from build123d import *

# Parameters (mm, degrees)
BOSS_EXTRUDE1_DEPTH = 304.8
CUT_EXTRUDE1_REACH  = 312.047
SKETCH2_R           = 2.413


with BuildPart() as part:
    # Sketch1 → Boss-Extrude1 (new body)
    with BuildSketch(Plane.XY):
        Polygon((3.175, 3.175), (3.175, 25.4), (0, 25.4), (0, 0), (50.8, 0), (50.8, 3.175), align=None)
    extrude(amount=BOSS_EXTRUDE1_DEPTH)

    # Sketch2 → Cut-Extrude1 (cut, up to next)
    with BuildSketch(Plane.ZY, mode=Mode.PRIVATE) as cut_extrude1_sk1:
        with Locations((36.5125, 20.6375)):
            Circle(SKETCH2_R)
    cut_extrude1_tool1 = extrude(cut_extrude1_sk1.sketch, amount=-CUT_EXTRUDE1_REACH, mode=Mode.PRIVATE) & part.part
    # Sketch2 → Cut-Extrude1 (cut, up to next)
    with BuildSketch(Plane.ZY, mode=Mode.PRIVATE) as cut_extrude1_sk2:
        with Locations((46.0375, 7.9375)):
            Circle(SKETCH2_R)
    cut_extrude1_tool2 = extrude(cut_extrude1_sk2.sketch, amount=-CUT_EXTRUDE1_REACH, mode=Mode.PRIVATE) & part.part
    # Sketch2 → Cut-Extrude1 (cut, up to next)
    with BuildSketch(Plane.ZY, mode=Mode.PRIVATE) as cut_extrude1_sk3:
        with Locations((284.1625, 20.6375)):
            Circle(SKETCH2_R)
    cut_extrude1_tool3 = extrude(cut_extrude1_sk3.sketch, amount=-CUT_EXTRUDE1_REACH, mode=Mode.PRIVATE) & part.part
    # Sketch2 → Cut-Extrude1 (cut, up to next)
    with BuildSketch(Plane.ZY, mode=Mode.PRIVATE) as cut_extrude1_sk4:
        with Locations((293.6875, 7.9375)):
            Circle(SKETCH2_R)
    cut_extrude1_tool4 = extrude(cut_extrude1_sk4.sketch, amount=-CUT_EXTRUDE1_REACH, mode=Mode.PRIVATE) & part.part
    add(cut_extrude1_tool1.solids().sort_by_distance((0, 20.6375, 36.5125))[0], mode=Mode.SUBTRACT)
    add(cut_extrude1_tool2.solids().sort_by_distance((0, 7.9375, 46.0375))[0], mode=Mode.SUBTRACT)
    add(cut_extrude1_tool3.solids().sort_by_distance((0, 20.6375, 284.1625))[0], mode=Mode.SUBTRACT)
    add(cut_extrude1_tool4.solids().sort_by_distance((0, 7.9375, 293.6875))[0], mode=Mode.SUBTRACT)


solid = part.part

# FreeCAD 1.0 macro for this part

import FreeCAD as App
import Part
import Sketcher
from FreeCAD import Vector
Q = App.Units.Quantity

doc = App.newDocument("Part")
body = doc.addObject("PartDesign::Body", "Body")

# Sketch on XY plane
sketch1 = doc.addObject("Sketcher::SketchObject", "Sketch")
body.addObject(sketch1)
sketch1.AttachmentSupport = (doc.XY_Plane, [""])
sketch1.MapMode = "FlatFace"
sketch1.addGeometry(Part.LineSegment(Vector(3.2, 3.2, 0), Vector(3.2, 25.4, 0)), False)
sketch1.addGeometry(Part.LineSegment(Vector(3.2, 25.4, 0), Vector(0, 25.4, 0)), False)
sketch1.addGeometry(Part.LineSegment(Vector(0, 25.4, 0), Vector(0, 0, 0)), False)
sketch1.addGeometry(Part.LineSegment(Vector(0, 0, 0), Vector(50.8, 0, 0)), False)
sketch1.addGeometry(Part.LineSegment(Vector(50.8, 0, 0), Vector(50.8, 3.2, 0)), False)
sketch1.addGeometry(Part.LineSegment(Vector(50.8, 3.2, 0), Vector(3.2, 3.2, 0)), False)
sketch1.addConstraint(Sketcher.Constraint("Coincident", 0, 2, 1, 1))
sketch1.addConstraint(Sketcher.Constraint("Coincident", 1, 2, 2, 1))
sketch1.addConstraint(Sketcher.Constraint("Coincident", 2, 2, 3, 1))
sketch1.addConstraint(Sketcher.Constraint("Coincident", 3, 2, 4, 1))
sketch1.addConstraint(Sketcher.Constraint("Coincident", 4, 2, 5, 1))
sketch1.addConstraint(Sketcher.Constraint("Coincident", 5, 2, 0, 1))
sketch1.addConstraint(Sketcher.Constraint("Vertical", 0))
sketch1.addConstraint(Sketcher.Constraint("Horizontal", 1))
sketch1.addConstraint(Sketcher.Constraint("Vertical", 2))
sketch1.addConstraint(Sketcher.Constraint("Horizontal", 3))
sketch1.addConstraint(Sketcher.Constraint("Vertical", 4))
sketch1.addConstraint(Sketcher.Constraint("Horizontal", 5))
sketch1.addConstraint(Sketcher.Constraint("Coincident", 2, 2, -1, 1))
sketch1.addConstraint(Sketcher.Constraint("Equal", 1, 4))
sketch1.addConstraint(Sketcher.Constraint("DistanceX", 3, 1, 3, 2, Q("2 in")))
sketch1.addConstraint(Sketcher.Constraint("DistanceY", 2, 2, 2, 1, Q("1 in")))
sketch1.addConstraint(Sketcher.Constraint("DistanceX", 1, 2, 1, 1, Q("0.125 in")))
pad1 = doc.addObject("PartDesign::Pad", "Pad")
body.addObject(pad1)
pad1.Profile = sketch1
pad1.Length = Q("12 in")

# Sketch on YZ plane
sketch2 = doc.addObject("Sketcher::SketchObject", "Sketch001")
body.addObject(sketch2)
sketch2.AttachmentSupport = (doc.YZ_Plane, [""])
sketch2.MapMode = "FlatFace"
sketch2.addGeometry(Part.Circle(Vector(20.6, 36.5, 0), Vector(0, 0, 1), 2.4), False)
sketch2.addConstraint(Sketcher.Constraint("Diameter", 0, Q("0.19 in")))
sketch2.addConstraint(Sketcher.Constraint("DistanceX", -1, 1, 0, 3, Q("0.8125 in")))
sketch2.addConstraint(Sketcher.Constraint("DistanceY", -1, 1, 0, 3, Q("1.4375 in")))
pocket1 = doc.addObject("PartDesign::Pocket", "Pocket")
body.addObject(pocket1)
pocket1.Profile = sketch2
pocket1.Type = "UpToFirst"
pocket1.Reversed = True

# Sketch on YZ plane
sketch3 = doc.addObject("Sketcher::SketchObject", "Sketch002")
body.addObject(sketch3)
sketch3.AttachmentSupport = (doc.YZ_Plane, [""])
sketch3.MapMode = "FlatFace"
sketch3.addGeometry(Part.Circle(Vector(7.9, 46, 0), Vector(0, 0, 1), 2.4), False)
sketch3.addConstraint(Sketcher.Constraint("Diameter", 0, Q("0.19 in")))
sketch3.addConstraint(Sketcher.Constraint("DistanceX", -1, 1, 0, 3, Q("0.3125 in")))
sketch3.addConstraint(Sketcher.Constraint("DistanceY", -1, 1, 0, 3, Q("1.8125 in")))
pocket2 = doc.addObject("PartDesign::Pocket", "Pocket001")
body.addObject(pocket2)
pocket2.Profile = sketch3
pocket2.Type = "UpToFirst"
pocket2.Reversed = True

# Sketch on YZ plane
sketch4 = doc.addObject("Sketcher::SketchObject", "Sketch003")
body.addObject(sketch4)
sketch4.AttachmentSupport = (doc.YZ_Plane, [""])
sketch4.MapMode = "FlatFace"
sketch4.addGeometry(Part.Circle(Vector(20.6, 284.2, 0), Vector(0, 0, 1), 2.4), False)
sketch4.addConstraint(Sketcher.Constraint("Diameter", 0, Q("0.19 in")))
sketch4.addConstraint(Sketcher.Constraint("DistanceX", -1, 1, 0, 3, Q("0.8125 in")))
sketch4.addConstraint(Sketcher.Constraint("DistanceY", -1, 1, 0, 3, Q("11.1875 in")))
pocket3 = doc.addObject("PartDesign::Pocket", "Pocket002")
body.addObject(pocket3)
pocket3.Profile = sketch4
pocket3.Type = "UpToFirst"
pocket3.Reversed = True

# Sketch on YZ plane
sketch5 = doc.addObject("Sketcher::SketchObject", "Sketch004")
body.addObject(sketch5)
sketch5.AttachmentSupport = (doc.YZ_Plane, [""])
sketch5.MapMode = "FlatFace"
sketch5.addGeometry(Part.Circle(Vector(7.9, 293.7, 0), Vector(0, 0, 1), 2.4), False)
sketch5.addConstraint(Sketcher.Constraint("Diameter", 0, Q("0.19 in")))
sketch5.addConstraint(Sketcher.Constraint("DistanceX", -1, 1, 0, 3, Q("0.3125 in")))
sketch5.addConstraint(Sketcher.Constraint("DistanceY", -1, 1, 0, 3, Q("11.5625 in")))
pocket4 = doc.addObject("PartDesign::Pocket", "Pocket003")
body.addObject(pocket4)
pocket4.Profile = sketch5
pocket4.Type = "UpToFirst"
pocket4.Reversed = True

doc.recompute()
